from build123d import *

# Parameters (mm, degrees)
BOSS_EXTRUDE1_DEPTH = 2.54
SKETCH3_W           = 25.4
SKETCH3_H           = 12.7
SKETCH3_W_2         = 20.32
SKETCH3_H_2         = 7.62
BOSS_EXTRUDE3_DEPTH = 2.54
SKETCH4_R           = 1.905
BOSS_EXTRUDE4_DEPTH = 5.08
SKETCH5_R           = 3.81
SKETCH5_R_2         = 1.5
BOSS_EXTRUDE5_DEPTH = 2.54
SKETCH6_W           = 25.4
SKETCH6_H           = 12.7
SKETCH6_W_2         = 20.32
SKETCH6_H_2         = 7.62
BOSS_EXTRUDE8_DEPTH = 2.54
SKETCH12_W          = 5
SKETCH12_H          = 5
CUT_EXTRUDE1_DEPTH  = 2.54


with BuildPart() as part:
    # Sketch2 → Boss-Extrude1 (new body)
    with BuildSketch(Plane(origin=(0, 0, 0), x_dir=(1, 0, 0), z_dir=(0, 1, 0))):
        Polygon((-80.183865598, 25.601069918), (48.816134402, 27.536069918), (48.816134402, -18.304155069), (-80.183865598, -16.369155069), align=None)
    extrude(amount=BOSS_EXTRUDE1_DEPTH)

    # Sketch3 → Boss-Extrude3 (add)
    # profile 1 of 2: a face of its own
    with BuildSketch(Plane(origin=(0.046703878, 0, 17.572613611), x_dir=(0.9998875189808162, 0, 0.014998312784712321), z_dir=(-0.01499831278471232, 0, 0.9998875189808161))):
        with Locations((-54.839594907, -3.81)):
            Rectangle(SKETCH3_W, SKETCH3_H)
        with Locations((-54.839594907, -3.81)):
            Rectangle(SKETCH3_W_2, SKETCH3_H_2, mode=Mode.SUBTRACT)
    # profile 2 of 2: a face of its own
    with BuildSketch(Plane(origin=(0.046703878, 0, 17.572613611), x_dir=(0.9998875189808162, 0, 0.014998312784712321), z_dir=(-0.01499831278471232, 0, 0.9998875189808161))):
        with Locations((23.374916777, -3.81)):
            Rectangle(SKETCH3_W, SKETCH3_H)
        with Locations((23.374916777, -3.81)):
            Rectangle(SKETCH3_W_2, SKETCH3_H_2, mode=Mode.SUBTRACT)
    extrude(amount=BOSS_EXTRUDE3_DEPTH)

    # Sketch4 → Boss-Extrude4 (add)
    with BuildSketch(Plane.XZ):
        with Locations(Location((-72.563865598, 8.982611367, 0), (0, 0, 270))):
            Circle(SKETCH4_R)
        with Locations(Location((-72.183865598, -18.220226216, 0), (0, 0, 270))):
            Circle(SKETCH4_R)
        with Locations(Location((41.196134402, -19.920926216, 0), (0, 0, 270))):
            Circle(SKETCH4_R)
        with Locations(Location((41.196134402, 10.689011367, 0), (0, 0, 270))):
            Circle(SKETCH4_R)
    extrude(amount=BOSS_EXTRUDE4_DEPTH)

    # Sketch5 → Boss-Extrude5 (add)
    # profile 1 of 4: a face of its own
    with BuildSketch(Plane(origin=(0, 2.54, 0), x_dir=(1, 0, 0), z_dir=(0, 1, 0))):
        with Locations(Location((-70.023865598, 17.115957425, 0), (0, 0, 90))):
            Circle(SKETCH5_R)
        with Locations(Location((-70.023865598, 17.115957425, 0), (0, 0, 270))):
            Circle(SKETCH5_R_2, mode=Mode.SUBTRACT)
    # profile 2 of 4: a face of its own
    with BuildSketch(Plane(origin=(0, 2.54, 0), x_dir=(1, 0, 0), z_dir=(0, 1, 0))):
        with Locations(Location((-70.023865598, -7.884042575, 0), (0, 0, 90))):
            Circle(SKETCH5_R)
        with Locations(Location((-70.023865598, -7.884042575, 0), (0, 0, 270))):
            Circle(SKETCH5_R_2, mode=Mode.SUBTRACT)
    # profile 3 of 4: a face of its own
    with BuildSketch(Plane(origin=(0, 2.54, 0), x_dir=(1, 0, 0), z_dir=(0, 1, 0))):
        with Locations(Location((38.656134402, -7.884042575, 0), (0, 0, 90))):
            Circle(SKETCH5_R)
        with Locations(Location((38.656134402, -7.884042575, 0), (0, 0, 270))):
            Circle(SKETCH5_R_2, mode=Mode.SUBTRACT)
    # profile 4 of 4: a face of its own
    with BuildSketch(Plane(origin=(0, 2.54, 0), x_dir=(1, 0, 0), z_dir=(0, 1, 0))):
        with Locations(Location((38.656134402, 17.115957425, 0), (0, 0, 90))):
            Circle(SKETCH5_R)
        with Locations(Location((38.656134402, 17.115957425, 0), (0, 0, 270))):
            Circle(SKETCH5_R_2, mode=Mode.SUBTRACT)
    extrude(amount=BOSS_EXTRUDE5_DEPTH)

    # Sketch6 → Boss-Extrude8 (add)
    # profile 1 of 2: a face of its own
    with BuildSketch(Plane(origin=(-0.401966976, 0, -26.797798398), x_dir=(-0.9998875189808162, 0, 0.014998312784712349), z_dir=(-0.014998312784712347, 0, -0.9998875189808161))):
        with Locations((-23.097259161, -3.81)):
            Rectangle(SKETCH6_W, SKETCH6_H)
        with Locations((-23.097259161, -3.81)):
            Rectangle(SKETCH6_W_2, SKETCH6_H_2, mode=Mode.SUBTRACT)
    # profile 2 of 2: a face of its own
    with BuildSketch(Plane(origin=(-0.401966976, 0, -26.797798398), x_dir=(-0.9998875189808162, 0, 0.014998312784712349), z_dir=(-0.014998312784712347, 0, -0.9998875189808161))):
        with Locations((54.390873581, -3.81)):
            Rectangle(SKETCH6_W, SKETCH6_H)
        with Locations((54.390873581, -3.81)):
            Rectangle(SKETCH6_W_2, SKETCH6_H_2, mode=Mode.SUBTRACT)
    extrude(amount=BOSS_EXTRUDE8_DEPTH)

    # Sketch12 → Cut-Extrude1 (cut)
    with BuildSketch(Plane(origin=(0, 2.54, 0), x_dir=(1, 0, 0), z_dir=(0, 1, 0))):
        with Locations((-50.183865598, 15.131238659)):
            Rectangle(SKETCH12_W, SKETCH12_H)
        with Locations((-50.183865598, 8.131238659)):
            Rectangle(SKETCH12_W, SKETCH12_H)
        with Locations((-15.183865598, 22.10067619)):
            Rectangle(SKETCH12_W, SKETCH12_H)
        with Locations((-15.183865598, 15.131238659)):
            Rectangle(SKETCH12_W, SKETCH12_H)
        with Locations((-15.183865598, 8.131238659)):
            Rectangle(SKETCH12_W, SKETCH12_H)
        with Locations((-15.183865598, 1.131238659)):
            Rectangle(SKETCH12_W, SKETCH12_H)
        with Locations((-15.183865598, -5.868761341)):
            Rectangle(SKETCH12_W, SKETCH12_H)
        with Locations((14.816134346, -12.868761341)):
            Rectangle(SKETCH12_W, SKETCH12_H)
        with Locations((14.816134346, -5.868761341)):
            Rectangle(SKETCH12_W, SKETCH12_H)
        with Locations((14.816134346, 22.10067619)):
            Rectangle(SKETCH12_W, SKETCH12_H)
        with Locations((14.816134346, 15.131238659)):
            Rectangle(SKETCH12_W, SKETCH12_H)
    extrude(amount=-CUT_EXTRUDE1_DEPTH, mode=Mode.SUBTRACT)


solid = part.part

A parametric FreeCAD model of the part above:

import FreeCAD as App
import Part
import Sketcher
Q = App.Units.Quantity

doc = App.newDocument("Part")
body = doc.addObject("PartDesign::Body", "Body")

sketch1 = body.newObject("Sketcher::SketchObject", "Sketch")
sketch1.AttachmentSupport = (doc.getObject("XZ_Plane"), [""])
sketch1.MapMode = "FlatFace"
sketch1.addGeometry([
    Part.LineSegment(App.Vector(49, -28, 0), App.Vector(-80, -26, 0)),
    Part.LineSegment(App.Vector(-80, -26, 0), App.Vector(-80, 16, 0)),
    Part.LineSegment(App.Vector(-80, 16, 0), App.Vector(49, 18, 0)),
    Part.LineSegment(App.Vector(49, 18, 0), App.Vector(49, -28, 0)),
], False)
sketch1.addConstraint([
    Sketcher.Constraint("Coincident", 0, 2, 1, 1),
    Sketcher.Constraint("Coincident", 1, 2, 2, 1),
    Sketcher.Constraint("Coincident", 2, 2, 3, 1),
    Sketcher.Constraint("Coincident", 3, 2, 0, 1),
    Sketcher.Constraint("Vertical", 1),
    Sketcher.Constraint("Vertical", 3),
    Sketcher.Constraint("Equal", 0, 2),
    Sketcher.Constraint("DistanceX", 1, 2, 2, 2, 129.0),
    Sketcher.Constraint("DistanceY", 1, 2, 2, 2, 1.935),
    Sketcher.Constraint("DistanceY", 1, 1, 1, 2, 41.970225),
    Sketcher.Constraint("DistanceY", 0, 2, -1, 1, 25.60107),
    Sketcher.Constraint("DistanceX", 0, 2, -1, 1, 80.183866),
])
pad1 = body.newObject("PartDesign::Pad", "Pad")
pad1.Profile = sketch1
pad1.Length = Q("0.1 in")
pad1.Reversed = True

sketch2 = body.newObject("Sketcher::SketchObject", "Sketch001")
sketch2.Placement = App.Placement(App.Vector(0.046704, 0, 17.572614), App.Rotation(App.Vector(0.999887519, 0, 0.014998313), App.Vector(0, 1, 0), App.Vector(-0.014998313, 0, 0.999887519), "ZXY"))
sketch2.addGeometry([
    Part.LineSegment(App.Vector(-68, 3, 0), App.Vector(-68, -10, 0)),
    Part.LineSegment(App.Vector(-68, -10, 0), App.Vector(-42, -10, 0)),
    Part.LineSegment(App.Vector(-42, -10, 0), App.Vector(-42, 3, 0)),
    Part.LineSegment(App.Vector(-42, 3, 0), App.Vector(-68, 3, 0)),
    Part.LineSegment(App.Vector(-45, -8, 0), App.Vector(-65, -8, 0)),
    Part.LineSegment(App.Vector(-65, -8, 0), App.Vector(-65, 0, 0)),
    Part.LineSegment(App.Vector(-65, 0, 0), App.Vector(-45, 0, 0)),
    Part.LineSegment(App.Vector(-45, 0, 0), App.Vector(-45, -8, 0)),
    Part.LineSegment(App.Vector(11, 3, 0), App.Vector(11, -10, 0)),
    Part.LineSegment(App.Vector(11, -10, 0), App.Vector(36, -10, 0)),
    Part.LineSegment(App.Vector(36, -10, 0), App.Vector(36, 3, 0)),
    Part.LineSegment(App.Vector(36, 3, 0), App.Vector(11, 3, 0)),
    Part.LineSegment(App.Vector(34, -8, 0), App.Vector(13, -8, 0)),
    Part.LineSegment(App.Vector(13, -8, 0), App.Vector(13, 0, 0)),
    Part.LineSegment(App.Vector(13, 0, 0), App.Vector(34, 0, 0)),
    Part.LineSegment(App.Vector(34, 0, 0), App.Vector(34, -8, 0)),
], False)
sketch2.addConstraint([
    Sketcher.Constraint("Coincident", 0, 2, 1, 1),
    Sketcher.Constraint("Coincident", 1, 2, 2, 1),
    Sketcher.Constraint("Coincident", 2, 2, 3, 1),
    Sketcher.Constraint("Coincident", 3, 2, 0, 1),
    Sketcher.Constraint("Coincident", 4, 2, 5, 1),
    Sketcher.Constraint("Coincident", 5, 2, 6, 1),
    Sketcher.Constraint("Coincident", 6, 2, 7, 1),
    Sketcher.Constraint("Coincident", 7, 2, 4, 1),
    Sketcher.Constraint("Coincident", 8, 2, 9, 1),
    Sketcher.Constraint("Coincident", 9, 2, 10, 1),
    Sketcher.Constraint("Coincident", 10, 2, 11, 1),
    Sketcher.Constraint("Coincident", 11, 2, 8, 1),
    Sketcher.Constraint("Coincident", 12, 2, 13, 1),
    Sketcher.Constraint("Coincident", 13, 2, 14, 1),
    Sketcher.Constraint("Coincident", 14, 2, 15, 1),
    Sketcher.Constraint("Coincident", 15, 2, 12, 1),
    Sketcher.Constraint("Vertical", 0),
    Sketcher.Constraint("Horizontal", 1),
    Sketcher.Constraint("Vertical", 2),
    Sketcher.Constraint("Horizontal", 3),
    Sketcher.Constraint("Horizontal", 4),
    Sketcher.Constraint("Vertical", 5),
    Sketcher.Constraint("Horizontal", 6),
    Sketcher.Constraint("Vertical", 7),
    Sketcher.Constraint("Vertical", 8),
    Sketcher.Constraint("Horizontal", 9),
    Sketcher.Constraint("Vertical", 10),
    Sketcher.Constraint("Horizontal", 11),
    Sketcher.Constraint("Horizontal", 12),
    Sketcher.Constraint("Vertical", 13),
    Sketcher.Constraint("Horizontal", 14),
    Sketcher.Constraint("Vertical", 15),
    Sketcher.Constraint("PointOnObject", 5, 2, -1),
    Sketcher.Constraint("PointOnObject", 13, 2, -1),
    Sketcher.Constraint("Horizontal", 1, 2, 8, 2),
    Sketcher.Constraint("Horizontal", 3, 2, 10, 2),
    Sketcher.Constraint("Horizontal", 7, 2, 12, 2),
    Sketcher.Constraint("Equal", 3, 9),
    Sketcher.Constraint("Equal", 6, 12),
    Sketcher.Constraint("DistanceX", 1, 1, 1, 2, Q("1 in")),
    Sketcher.Constraint("DistanceX", 4, 2, 4, 1, Q("0.8 in")),
    Sketcher.Constraint("DistanceY", 0, 2, 0, 1, Q("0.5 in")),
    Sketcher.Constraint("DistanceY", 5, 1, 5, 2, Q("0.3 in")),
    Sketcher.Constraint("DistanceY", 0, 2, -1, 1, Q("0.4 in")),
    Sketcher.Constraint("DistanceX", 0, 2, 4, 2, Q("0.1 in")),
    Sketcher.Constraint("DistanceX", 8, 2, 12, 2, Q("0.1 in")),
    Sketcher.Constraint("DistanceX", 1, 2, 8, 2, 52.814512),
    Sketcher.Constraint("DistanceX", 0, 2, -1, 1, 67.539595),
])
pad2 = body.newObject("PartDesign::Pad", "Pad001")
pad2.Profile = sketch2
pad2.Length = Q("0.1 in")

sketch3 = body.newObject("Sketcher::SketchObject", "Sketch002")
sketch3.AttachmentSupport = (doc.getObject("XZ_Plane"), [""])
sketch3.MapMode = "FlatFace"
sketch3.addGeometry([
    Part.Circle(App.Vector(-72.6, 9, 0), App.Vector(0, 0, 1), 1.9),
    Part.Circle(App.Vector(-72.2, -18.2, 0), App.Vector(0, 0, 1), 1.9),
    Part.Circle(App.Vector(41.2, -19.9, 0), App.Vector(0, 0, 1), 1.9),
    Part.Circle(App.Vector(41.2, 10.7, 0), App.Vector(0, 0, 1), 1.9),
], False)
sketch3.addConstraint([
    Sketcher.Constraint("Equal", 0, 1),
    Sketcher.Constraint("Equal", 1, 2),
    Sketcher.Constraint("Equal", 2, 3),
    Sketcher.Constraint("Vertical", 2, 3, 3, 3),
    Sketcher.Constraint("Diameter", 0, Q("0.15 in")),
    Sketcher.Constraint("DistanceX", 0, 3, 1, 3, 0.38),
    Sketcher.Constraint("DistanceX", 1, 3, 2, 3, 113.38),
    Sketcher.Constraint("DistanceY", 2, 3, 1, 3, 1.7007),
    Sketcher.Constraint("DistanceY", 0, 3, 3, 3, 1.7064),
    Sketcher.Constraint("DistanceY", -1, 1, 0, 3, 8.982611),
    Sketcher.Constraint("DistanceX", 0, 3, -1, 1, 72.563866),
    Sketcher.Constraint("DistanceY", 1, 3, -1, 1, 18.220226),
])
pad3 = body.newObject("PartDesign::Pad", "Pad002")
pad3.Profile = sketch3
pad3.Length = Q("0.2 in")

sketch4 = body.newObject("Sketcher::SketchObject", "Sketch003")
sketch4.AttachmentSupport = (doc.getObject("XZ_Plane"), [""])
sketch4.MapMode = "FlatFace"
sketch4.AttachmentOffset = App.Placement(App.Vector(0, 0, -0.1 * 25.4), App.Rotation())
sketch4.addGeometry([
    Part.Circle(App.Vector(-70, -17.1, 0), App.Vector(0, 0, 1), 3.8),
    Part.Circle(App.Vector(-70, -17.1, 0), App.Vector(0, 0, 1), 1.5),
    Part.Circle(App.Vector(-70, 7.9, 0), App.Vector(0, 0, 1), 3.8),
    Part.Circle(App.Vector(-70, 7.9, 0), App.Vector(0, 0, 1), 1.5),
    Part.Circle(App.Vector(38.7, 7.9, 0), App.Vector(0, 0, 1), 3.8),
    Part.Circle(App.Vector(38.7, 7.9, 0), App.Vector(0, 0, 1), 1.5),
    Part.Circle(App.Vector(38.7, -17.1, 0), App.Vector(0, 0, 1), 3.8),
    Part.Circle(App.Vector(38.7, -17.1, 0), App.Vector(0, 0, 1), 1.5),
], False)
sketch4.addConstraint([
    Sketcher.Constraint("Coincident", 1, 3, 0, 3),
    Sketcher.Constraint("Coincident", 3, 3, 2, 3),
    Sketcher.Constraint("Coincident", 5, 3, 4, 3),
    Sketcher.Constraint("Coincident", 7, 3, 6, 3),
    Sketcher.Constraint("Equal", 0, 2),
    Sketcher.Constraint("Equal", 1, 3),
    Sketcher.Constraint("Equal", 2, 4),
    Sketcher.Constraint("Equal", 3, 5),
    Sketcher.Constraint("Equal", 4, 6),
    Sketcher.Constraint("Equal", 5, 7),
    Sketcher.Constraint("Horizontal", 3, 3, 4, 3),
    Sketcher.Constraint("Horizontal", 1, 3, 6, 3),
    Sketcher.Constraint("Vertical", 1, 3, 2, 3),
    Sketcher.Constraint("Vertical", 5, 3, 6, 3),
    Sketcher.Constraint("Diameter", 0, Q("0.3 in")),
    Sketcher.Constraint("Diameter", 1, 3.0),
    Sketcher.Constraint("DistanceY", 0, 3, 2, 3, 25.0),
    Sketcher.Constraint("DistanceX", 2, 3, 4, 3, 108.68),
    Sketcher.Constraint("DistanceX", 0, 3, -1, 1, 70.023866),
    Sketcher.Constraint("DistanceY", 0, 3, -1, 1, 17.115957),
])
pad4 = body.newObject("PartDesign::Pad", "Pad003")
pad4.Profile = sketch4
pad4.Length = Q("0.1 in")
pad4.Reversed = True

sketch5 = body.newObject("Sketcher::SketchObject", "Sketch004")
sketch5.Placement = App.Placement(App.Vector(-0.401967, 0, -26.797798), App.Rotation(App.Vector(-0.999887519, 0, 0.014998313), App.Vector(0, 1, 0), App.Vector(-0.014998313, 0, -0.999887519), "ZXY"))
sketch5.addGeometry([
    Part.LineSegment(App.Vector(-36, 3, 0), App.Vector(-36, -10, 0)),
    Part.LineSegment(App.Vector(-36, -10, 0), App.Vector(-10, -10, 0)),
    Part.LineSegment(App.Vector(-10, -10, 0), App.Vector(-10, 3, 0)),
    Part.LineSegment(App.Vector(-10, 3, 0), App.Vector(-36, 3, 0)),
    Part.LineSegment(App.Vector(-13, -8, 0), App.Vector(-33, -8, 0)),
    Part.LineSegment(App.Vector(-33, -8, 0), App.Vector(-33, 0, 0)),
    Part.LineSegment(App.Vector(-33, 0, 0), App.Vector(-13, 0, 0)),
    Part.LineSegment(App.Vector(-13, 0, 0), App.Vector(-13, -8, 0)),
    Part.LineSegment(App.Vector(42, 3, 0), App.Vector(42, -10, 0)),
    Part.LineSegment(App.Vector(42, -10, 0), App.Vector(67, -10, 0)),
    Part.LineSegment(App.Vector(67, -10, 0), App.Vector(67, 3, 0)),
    Part.LineSegment(App.Vector(67, 3, 0), App.Vector(42, 3, 0)),
    Part.LineSegment(App.Vector(65, -8, 0), App.Vector(44, -8, 0)),
    Part.LineSegment(App.Vector(44, -8, 0), App.Vector(44, 0, 0)),
    Part.LineSegment(App.Vector(44, 0, 0), App.Vector(65, 0, 0)),
    Part.LineSegment(App.Vector(65, 0, 0), App.Vector(65, -8, 0)),
], False)
sketch5.addConstraint([
    Sketcher.Constraint("Coincident", 0, 2, 1, 1),
    Sketcher.Constraint("Coincident", 1, 2, 2, 1),
    Sketcher.Constraint("Coincident", 2, 2, 3, 1),
    Sketcher.Constraint("Coincident", 3, 2, 0, 1),
    Sketcher.Constraint("Coincident", 4, 2, 5, 1),
    Sketcher.Constraint("Coincident", 5, 2, 6, 1),
    Sketcher.Constraint("Coincident", 6, 2, 7, 1),
    Sketcher.Constraint("Coincident", 7, 2, 4, 1),
    Sketcher.Constraint("Coincident", 8, 2, 9, 1),
    Sketcher.Constraint("Coincident", 9, 2, 10, 1),
    Sketcher.Constraint("Coincident", 10, 2, 11, 1),
    Sketcher.Constraint("Coincident", 11, 2, 8, 1),
    Sketcher.Constraint("Coincident", 12, 2, 13, 1),
    Sketcher.Constraint("Coincident", 13, 2, 14, 1),
    Sketcher.Constraint("Coincident", 14, 2, 15, 1),
    Sketcher.Constraint("Coincident", 15, 2, 12, 1),
    Sketcher.Constraint("Vertical", 0),
    Sketcher.Constraint("Horizontal", 1),
    Sketcher.Constraint("Vertical", 2),
    Sketcher.Constraint("Horizontal", 3),
    Sketcher.Constraint("Horizontal", 4),
    Sketcher.Constraint("Vertical", 5),
    Sketcher.Constraint("Horizontal", 6),
    Sketcher.Constraint("Vertical", 7),
    Sketcher.Constraint("Vertical", 8),
    Sketcher.Constraint("Horizontal", 9),
    Sketcher.Constraint("Vertical", 10),
    Sketcher.Constraint("Horizontal", 11),
    Sketcher.Constraint("Horizontal", 12),
    Sketcher.Constraint("Vertical", 13),
    Sketcher.Constraint("Horizontal", 14),
    Sketcher.Constraint("Vertical", 15),
    Sketcher.Constraint("PointOnObject", 5, 2, -1),
    Sketcher.Constraint("PointOnObject", 13, 2, -1),
    Sketcher.Constraint("Horizontal", 1, 2, 8, 2),
    Sketcher.Constraint("Horizontal", 3, 2, 10, 2),
    Sketcher.Constraint("Horizontal", 7, 2, 12, 2),
    Sketcher.Constraint("Equal", 3, 9),
    Sketcher.Constraint("Equal", 6, 12),
    Sketcher.Constraint("DistanceX", 1, 1, 1, 2, Q("1 in")),
    Sketcher.Constraint("DistanceX", 4, 2, 4, 1, Q("0.8 in")),
    Sketcher.Constraint("DistanceY", 0, 2, 0, 1, Q("0.5 in")),
    Sketcher.Constraint("DistanceY", 5, 1, 5, 2, Q("0.3 in")),
    Sketcher.Constraint("DistanceY", 0, 2, -1, 1, Q("0.4 in")),
    Sketcher.Constraint("DistanceX", 0, 2, 4, 2, Q("0.1 in")),
    Sketcher.Constraint("DistanceX", 8, 2, 12, 2, Q("0.1 in")),
    Sketcher.Constraint("DistanceX", 0, 2, -1, 1, 35.797259),
    Sketcher.Constraint("DistanceX", -1, 1, 8, 2, 41.690874),
])
pad5 = body.newObject("PartDesign::Pad", "Pad004")
pad5.Profile = sketch5
pad5.Length = Q("0.1 in")

sketch6 = body.newObject("Sketcher::SketchObject", "Sketch005")
sketch6.AttachmentSupport = (doc.getObject("XZ_Plane"), [""])
sketch6.MapMode = "FlatFace"
sketch6.AttachmentOffset = App.Placement(App.Vector(0, 0, -0.1 * 25.4), App.Rotation())
sketch6.addGeometry([
    Part.LineSegment(App.Vector(-52.7, -17.6, 0), App.Vector(-52.7, -12.6, 0)),
    Part.LineSegment(App.Vector(-52.7, -12.6, 0), App.Vector(-47.7, -12.6, 0)),
    Part.LineSegment(App.Vector(-47.7, -12.6, 0), App.Vector(-47.7, -17.6, 0)),
    Part.LineSegment(App.Vector(-47.7, -17.6, 0), App.Vector(-52.7, -17.6, 0)),
    Part.LineSegment(App.Vector(-52.7, -10.6, 0), App.Vector(-52.7, -5.6, 0)),
    Part.LineSegment(App.Vector(-52.7, -5.6, 0), App.Vector(-47.7, -5.6, 0)),
    Part.LineSegment(App.Vector(-47.7, -5.6, 0), App.Vector(-47.7, -10.6, 0)),
    Part.LineSegment(App.Vector(-47.7, -10.6, 0), App.Vector(-52.7, -10.6, 0)),
    Part.LineSegment(App.Vector(-17.7, -24.6, 0), App.Vector(-17.7, -19.6, 0)),
    Part.LineSegment(App.Vector(-17.7, -19.6, 0), App.Vector(-12.7, -19.6, 0)),
    Part.LineSegment(App.Vector(-12.7, -19.6, 0), App.Vector(-12.7, -24.6, 0)),
    Part.LineSegment(App.Vector(-12.7, -24.6, 0), App.Vector(-17.7, -24.6, 0)),
    Part.LineSegment(App.Vector(-17.7, -17.6, 0), App.Vector(-17.7, -12.6, 0)),
    Part.LineSegment(App.Vector(-17.7, -12.6, 0), App.Vector(-12.7, -12.6, 0)),
    Part.LineSegment(App.Vector(-12.7, -12.6, 0), App.Vector(-12.7, -17.6, 0)),
    Part.LineSegment(App.Vector(-12.7, -17.6, 0), App.Vector(-17.7, -17.6, 0)),
    Part.LineSegment(App.Vector(-17.7, -10.6, 0), App.Vector(-17.7, -5.6, 0)),
    Part.LineSegment(App.Vector(-17.7, -5.6, 0), App.Vector(-12.7, -5.6, 0)),
    Part.LineSegment(App.Vector(-12.7, -5.6, 0), App.Vector(-12.7, -10.6, 0)),
    Part.LineSegment(App.Vector(-12.7, -10.6, 0), App.Vector(-17.7, -10.6, 0)),
    Part.LineSegment(App.Vector(-17.7, -3.6, 0), App.Vector(-17.7, 1.4, 0)),
    Part.LineSegment(App.Vector(-17.7, 1.4, 0), App.Vector(-12.7, 1.4, 0)),
    Part.LineSegment(App.Vector(-12.7, 1.4, 0), App.Vector(-12.7, -3.6, 0)),
    Part.LineSegment(App.Vector(-12.7, -3.6, 0), App.Vector(-17.7, -3.6, 0)),
    Part.LineSegment(App.Vector(-17.7, 3.4, 0), App.Vector(-17.7, 8.4, 0)),
    Part.LineSegment(App.Vector(-17.7, 8.4, 0), App.Vector(-12.7, 8.4, 0)),
    Part.LineSegment(App.Vector(-12.7, 8.4, 0), App.Vector(-12.7, 3.4, 0)),
    Part.LineSegment(App.Vector(-12.7, 3.4, 0), App.Vector(-17.7, 3.4, 0)),
    Part.LineSegment(App.Vector(12.3, 10.4, 0), App.Vector(12.3, 15.4, 0)),
    Part.LineSegment(App.Vector(12.3, 15.4, 0), App.Vector(17.3, 15.4, 0)),
    Part.LineSegment(App.Vector(17.3, 15.4, 0), App.Vector(17.3, 10.4, 0)),
    Part.LineSegment(App.Vector(17.3, 10.4, 0), App.Vector(12.3, 10.4, 0)),
    Part.LineSegment(App.Vector(12.3, 3.4, 0), App.Vector(12.3, 8.4, 0)),
    Part.LineSegment(App.Vector(12.3, 8.4, 0), App.Vector(17.3, 8.4, 0)),
    Part.LineSegment(App.Vector(17.3, 8.4, 0), App.Vector(17.3, 3.4, 0)),
    Part.LineSegment(App.Vector(17.3, 3.4, 0), App.Vector(12.3, 3.4, 0)),
    Part.LineSegment(App.Vector(12.3, -24.6, 0), App.Vector(12.3, -19.6, 0)),
    Part.LineSegment(App.Vector(12.3, -19.6, 0), App.Vector(17.3, -19.6, 0)),
    Part.LineSegment(App.Vector(17.3, -19.6, 0), App.Vector(17.3, -24.6, 0)),
    Part.LineSegment(App.Vector(17.3, -24.6, 0), App.Vector(12.3, -24.6, 0)),
    Part.LineSegment(App.Vector(12.3, -17.6, 0), App.Vector(12.3, -12.6, 0)),
    Part.LineSegment(App.Vector(12.3, -12.6, 0), App.Vector(17.3, -12.6, 0)),
    Part.LineSegment(App.Vector(17.3, -12.6, 0), App.Vector(17.3, -17.6, 0)),
    Part.LineSegment(App.Vector(17.3, -17.6, 0), App.Vector(12.3, -17.6, 0)),
], False)
sketch6.addConstraint([
    Sketcher.Constraint("Coincident", 0, 2, 1, 1),
    Sketcher.Constraint("Coincident", 1, 2, 2, 1),
    Sketcher.Constraint("Coincident", 2, 2, 3, 1),
    Sketcher.Constraint("Coincident", 3, 2, 0, 1),
    Sketcher.Constraint("Coincident", 4, 2, 5, 1),
    Sketcher.Constraint("Coincident", 5, 2, 6, 1),
    Sketcher.Constraint("Coincident", 6, 2, 7, 1),
    Sketcher.Constraint("Coincident", 7, 2, 4, 1),
    Sketcher.Constraint("Coincident", 8, 2, 9, 1),
    Sketcher.Constraint("Coincident", 9, 2, 10, 1),
    Sketcher.Constraint("Coincident", 10, 2, 11, 1),
    Sketcher.Constraint("Coincident", 11, 2, 8, 1),
    Sketcher.Constraint("Coincident", 12, 2, 13, 1),
    Sketcher.Constraint("Coincident", 13, 2, 14, 1),
    Sketcher.Constraint("Coincident", 14, 2, 15, 1),
    Sketcher.Constraint("Coincident", 15, 2, 12, 1),
    Sketcher.Constraint("Coincident", 16, 2, 17, 1),
    Sketcher.Constraint("Coincident", 17, 2, 18, 1),
    Sketcher.Constraint("Coincident", 18, 2, 19, 1),
    Sketcher.Constraint("Coincident", 19, 2, 16, 1),
    Sketcher.Constraint("Coincident", 20, 2, 21, 1),
    Sketcher.Constraint("Coincident", 21, 2, 22, 1),
    Sketcher.Constraint("Coincident", 22, 2, 23, 1),
    Sketcher.Constraint("Coincident", 23, 2, 20, 1),
    Sketcher.Constraint("Coincident", 24, 2, 25, 1),
    Sketcher.Constraint("Coincident", 25, 2, 26, 1),
    Sketcher.Constraint("Coincident", 26, 2, 27, 1),
    Sketcher.Constraint("Coincident", 27, 2, 24, 1),
    Sketcher.Constraint("Coincident", 28, 2, 29, 1),
    Sketcher.Constraint("Coincident", 29, 2, 30, 1),
    Sketcher.Constraint("Coincident", 30, 2, 31, 1),
    Sketcher.Constraint("Coincident", 31, 2, 28, 1),
    Sketcher.Constraint("Coincident", 32, 2, 33, 1),
    Sketcher.Constraint("Coincident", 33, 2, 34, 1),
    Sketcher.Constraint("Coincident", 34, 2, 35, 1),
    Sketcher.Constraint("Coincident", 35, 2, 32, 1),
    Sketcher.Constraint("Coincident", 36, 2, 37, 1),
    Sketcher.Constraint("Coincident", 37, 2, 38, 1),
    Sketcher.Constraint("Coincident", 38, 2, 39, 1),
    Sketcher.Constraint("Coincident", 39, 2, 36, 1),
    Sketcher.Constraint("Coincident", 40, 2, 41, 1),
    Sketcher.Constraint("Coincident", 41, 2, 42, 1),
    Sketcher.Constraint("Coincident", 42, 2, 43, 1),
    Sketcher.Constraint("Coincident", 43, 2, 40, 1),
    Sketcher.Constraint("Vertical", 0),
    Sketcher.Constraint("Horizontal", 1),
    Sketcher.Constraint("Vertical", 2),
    Sketcher.Constraint("Horizontal", 3),
    Sketcher.Constraint("Vertical", 4),
    Sketcher.Constraint("Horizontal", 5),
    Sketcher.Constraint("Vertical", 6),
    Sketcher.Constraint("Horizontal", 7),
    Sketcher.Constraint("Vertical", 8),
    Sketcher.Constraint("Horizontal", 9),
    Sketcher.Constraint("Vertical", 10),
    Sketcher.Constraint("Horizontal", 11),
    Sketcher.Constraint("Vertical", 12),
    Sketcher.Constraint("Horizontal", 13),
    Sketcher.Constraint("Vertical", 14),
    Sketcher.Constraint("Horizontal", 15),
    Sketcher.Constraint("Vertical", 16),
    Sketcher.Constraint("Horizontal", 17),
    Sketcher.Constraint("Vertical", 18),
    Sketcher.Constraint("Horizontal", 19),
    Sketcher.Constraint("Vertical", 20),
    Sketcher.Constraint("Horizontal", 21),
    Sketcher.Constraint("Vertical", 22),
    Sketcher.Constraint("Horizontal", 23),
    Sketcher.Constraint("Vertical", 24),
    Sketcher.Constraint("Horizontal", 25),
    Sketcher.Constraint("Vertical", 26),
    Sketcher.Constraint("Horizontal", 27),
    Sketcher.Constraint("Vertical", 28),
    Sketcher.Constraint("Horizontal", 29),
    Sketcher.Constraint("Vertical", 30),
    Sketcher.Constraint("Horizontal", 31),
    Sketcher.Constraint("Vertical", 32),
    Sketcher.Constraint("Horizontal", 33),
    Sketcher.Constraint("Vertical", 34),
    Sketcher.Constraint("Horizontal", 35),
    Sketcher.Constraint("Vertical", 36),
    Sketcher.Constraint("Horizontal", 37),
    Sketcher.Constraint("Vertical", 38),
    Sketcher.Constraint("Horizontal", 39),
    Sketcher.Constraint("Vertical", 40),
    Sketcher.Constraint("Horizontal", 41),
    Sketcher.Constraint("Vertical", 42),
    Sketcher.Constraint("Horizontal", 43),
    Sketcher.Constraint("Horizontal", 1, 2, 12, 2),
    Sketcher.Constraint("Horizontal", 3, 2, 14, 2),
    Sketcher.Constraint("Horizontal", 5, 2, 16, 2),
    Sketcher.Constraint("Horizontal", 7, 2, 18, 2),
    Sketcher.Constraint("Horizontal", 25, 2, 32, 2),
    Sketcher.Constraint("Horizontal", 27, 2, 34, 2),
    Sketcher.Constraint("Horizontal", 9, 2, 36, 2),
    Sketcher.Constraint("Horizontal", 11, 2, 38, 2),
    Sketcher.Constraint("Horizontal", 13, 2, 40, 2),
    Sketcher.Constraint("Horizontal", 15, 2, 42, 2),
    Sketcher.Constraint("Vertical", 3, 2, 4, 2),
    Sketcher.Constraint("Vertical", 2, 2, 5, 2),
    Sketcher.Constraint("Vertical", 11, 2, 12, 2),
    Sketcher.Constraint("Vertical", 10, 2, 13, 2),
    Sketcher.Constraint("Vertical", 15, 2, 16, 2),
    Sketcher.Constraint("Vertical", 14, 2, 17, 2),
    Sketcher.Constraint("Vertical", 19, 2, 20, 2),
    Sketcher.Constraint("Vertical", 18, 2, 21, 2),
    Sketcher.Constraint("Vertical", 23, 2, 24, 2),
    Sketcher.Constraint("Vertical", 22, 2, 25, 2),
    Sketcher.Constraint("Vertical", 31, 2, 32, 2),
    Sketcher.Constraint("Vertical", 30, 2, 33, 2),
    Sketcher.Constraint("Vertical", 35, 2, 36, 2),
    Sketcher.Constraint("Vertical", 34, 2, 37, 2),
    Sketcher.Constraint("Vertical", 39, 2, 40, 2),
    Sketcher.Constraint("Vertical", 38, 2, 41, 2),
    Sketcher.Constraint("Equal", 7, 9),
    Sketcher.Constraint("Equal", 27, 29),
    Sketcher.Constraint("Equal", 43, 0),
    Sketcher.Constraint("Equal", 2, 4),
    Sketcher.Constraint("Equal", 6, 8),
    Sketcher.Constraint("Equal", 18, 20),
    Sketcher.Constraint("Equal", 22, 24),
    Sketcher.Constraint("Equal", 26, 28),
    Sketcher.Constraint("DistanceX", 1, 1, 1, 2, 5.0),
    Sketcher.Constraint("DistanceY", 0, 2, 4, 2, 7.0),
    Sketcher.Constraint("DistanceX", 2, 2, 8, 2, 30.0),
    Sketcher.Constraint("DistanceY", 16, 2, 20, 2, 7.0),
    Sketcher.Constraint("DistanceY", 20, 2, 24, 2, 7.0),
    Sketcher.Constraint("DistanceX", 25, 2, 28, 2, 25.0),
    Sketcher.Constraint("DistanceY", 25, 2, 28, 2, 7.0),
    Sketcher.Constraint("DistanceY", 0, 2, -1, 1, 12.631239),
    Sketcher.Constraint("DistanceX", 0, 2, -1, 1, 52.683866),
    Sketcher.Constraint("DistanceY", 8, 2, -1, 1, 19.600676),
])
pocket1 = body.newObject("PartDesign::Pocket", "Pocket")
pocket1.Profile = sketch6
pocket1.Length = Q("0.1 in")
pocket1.Reversed = True

doc.recompute()
